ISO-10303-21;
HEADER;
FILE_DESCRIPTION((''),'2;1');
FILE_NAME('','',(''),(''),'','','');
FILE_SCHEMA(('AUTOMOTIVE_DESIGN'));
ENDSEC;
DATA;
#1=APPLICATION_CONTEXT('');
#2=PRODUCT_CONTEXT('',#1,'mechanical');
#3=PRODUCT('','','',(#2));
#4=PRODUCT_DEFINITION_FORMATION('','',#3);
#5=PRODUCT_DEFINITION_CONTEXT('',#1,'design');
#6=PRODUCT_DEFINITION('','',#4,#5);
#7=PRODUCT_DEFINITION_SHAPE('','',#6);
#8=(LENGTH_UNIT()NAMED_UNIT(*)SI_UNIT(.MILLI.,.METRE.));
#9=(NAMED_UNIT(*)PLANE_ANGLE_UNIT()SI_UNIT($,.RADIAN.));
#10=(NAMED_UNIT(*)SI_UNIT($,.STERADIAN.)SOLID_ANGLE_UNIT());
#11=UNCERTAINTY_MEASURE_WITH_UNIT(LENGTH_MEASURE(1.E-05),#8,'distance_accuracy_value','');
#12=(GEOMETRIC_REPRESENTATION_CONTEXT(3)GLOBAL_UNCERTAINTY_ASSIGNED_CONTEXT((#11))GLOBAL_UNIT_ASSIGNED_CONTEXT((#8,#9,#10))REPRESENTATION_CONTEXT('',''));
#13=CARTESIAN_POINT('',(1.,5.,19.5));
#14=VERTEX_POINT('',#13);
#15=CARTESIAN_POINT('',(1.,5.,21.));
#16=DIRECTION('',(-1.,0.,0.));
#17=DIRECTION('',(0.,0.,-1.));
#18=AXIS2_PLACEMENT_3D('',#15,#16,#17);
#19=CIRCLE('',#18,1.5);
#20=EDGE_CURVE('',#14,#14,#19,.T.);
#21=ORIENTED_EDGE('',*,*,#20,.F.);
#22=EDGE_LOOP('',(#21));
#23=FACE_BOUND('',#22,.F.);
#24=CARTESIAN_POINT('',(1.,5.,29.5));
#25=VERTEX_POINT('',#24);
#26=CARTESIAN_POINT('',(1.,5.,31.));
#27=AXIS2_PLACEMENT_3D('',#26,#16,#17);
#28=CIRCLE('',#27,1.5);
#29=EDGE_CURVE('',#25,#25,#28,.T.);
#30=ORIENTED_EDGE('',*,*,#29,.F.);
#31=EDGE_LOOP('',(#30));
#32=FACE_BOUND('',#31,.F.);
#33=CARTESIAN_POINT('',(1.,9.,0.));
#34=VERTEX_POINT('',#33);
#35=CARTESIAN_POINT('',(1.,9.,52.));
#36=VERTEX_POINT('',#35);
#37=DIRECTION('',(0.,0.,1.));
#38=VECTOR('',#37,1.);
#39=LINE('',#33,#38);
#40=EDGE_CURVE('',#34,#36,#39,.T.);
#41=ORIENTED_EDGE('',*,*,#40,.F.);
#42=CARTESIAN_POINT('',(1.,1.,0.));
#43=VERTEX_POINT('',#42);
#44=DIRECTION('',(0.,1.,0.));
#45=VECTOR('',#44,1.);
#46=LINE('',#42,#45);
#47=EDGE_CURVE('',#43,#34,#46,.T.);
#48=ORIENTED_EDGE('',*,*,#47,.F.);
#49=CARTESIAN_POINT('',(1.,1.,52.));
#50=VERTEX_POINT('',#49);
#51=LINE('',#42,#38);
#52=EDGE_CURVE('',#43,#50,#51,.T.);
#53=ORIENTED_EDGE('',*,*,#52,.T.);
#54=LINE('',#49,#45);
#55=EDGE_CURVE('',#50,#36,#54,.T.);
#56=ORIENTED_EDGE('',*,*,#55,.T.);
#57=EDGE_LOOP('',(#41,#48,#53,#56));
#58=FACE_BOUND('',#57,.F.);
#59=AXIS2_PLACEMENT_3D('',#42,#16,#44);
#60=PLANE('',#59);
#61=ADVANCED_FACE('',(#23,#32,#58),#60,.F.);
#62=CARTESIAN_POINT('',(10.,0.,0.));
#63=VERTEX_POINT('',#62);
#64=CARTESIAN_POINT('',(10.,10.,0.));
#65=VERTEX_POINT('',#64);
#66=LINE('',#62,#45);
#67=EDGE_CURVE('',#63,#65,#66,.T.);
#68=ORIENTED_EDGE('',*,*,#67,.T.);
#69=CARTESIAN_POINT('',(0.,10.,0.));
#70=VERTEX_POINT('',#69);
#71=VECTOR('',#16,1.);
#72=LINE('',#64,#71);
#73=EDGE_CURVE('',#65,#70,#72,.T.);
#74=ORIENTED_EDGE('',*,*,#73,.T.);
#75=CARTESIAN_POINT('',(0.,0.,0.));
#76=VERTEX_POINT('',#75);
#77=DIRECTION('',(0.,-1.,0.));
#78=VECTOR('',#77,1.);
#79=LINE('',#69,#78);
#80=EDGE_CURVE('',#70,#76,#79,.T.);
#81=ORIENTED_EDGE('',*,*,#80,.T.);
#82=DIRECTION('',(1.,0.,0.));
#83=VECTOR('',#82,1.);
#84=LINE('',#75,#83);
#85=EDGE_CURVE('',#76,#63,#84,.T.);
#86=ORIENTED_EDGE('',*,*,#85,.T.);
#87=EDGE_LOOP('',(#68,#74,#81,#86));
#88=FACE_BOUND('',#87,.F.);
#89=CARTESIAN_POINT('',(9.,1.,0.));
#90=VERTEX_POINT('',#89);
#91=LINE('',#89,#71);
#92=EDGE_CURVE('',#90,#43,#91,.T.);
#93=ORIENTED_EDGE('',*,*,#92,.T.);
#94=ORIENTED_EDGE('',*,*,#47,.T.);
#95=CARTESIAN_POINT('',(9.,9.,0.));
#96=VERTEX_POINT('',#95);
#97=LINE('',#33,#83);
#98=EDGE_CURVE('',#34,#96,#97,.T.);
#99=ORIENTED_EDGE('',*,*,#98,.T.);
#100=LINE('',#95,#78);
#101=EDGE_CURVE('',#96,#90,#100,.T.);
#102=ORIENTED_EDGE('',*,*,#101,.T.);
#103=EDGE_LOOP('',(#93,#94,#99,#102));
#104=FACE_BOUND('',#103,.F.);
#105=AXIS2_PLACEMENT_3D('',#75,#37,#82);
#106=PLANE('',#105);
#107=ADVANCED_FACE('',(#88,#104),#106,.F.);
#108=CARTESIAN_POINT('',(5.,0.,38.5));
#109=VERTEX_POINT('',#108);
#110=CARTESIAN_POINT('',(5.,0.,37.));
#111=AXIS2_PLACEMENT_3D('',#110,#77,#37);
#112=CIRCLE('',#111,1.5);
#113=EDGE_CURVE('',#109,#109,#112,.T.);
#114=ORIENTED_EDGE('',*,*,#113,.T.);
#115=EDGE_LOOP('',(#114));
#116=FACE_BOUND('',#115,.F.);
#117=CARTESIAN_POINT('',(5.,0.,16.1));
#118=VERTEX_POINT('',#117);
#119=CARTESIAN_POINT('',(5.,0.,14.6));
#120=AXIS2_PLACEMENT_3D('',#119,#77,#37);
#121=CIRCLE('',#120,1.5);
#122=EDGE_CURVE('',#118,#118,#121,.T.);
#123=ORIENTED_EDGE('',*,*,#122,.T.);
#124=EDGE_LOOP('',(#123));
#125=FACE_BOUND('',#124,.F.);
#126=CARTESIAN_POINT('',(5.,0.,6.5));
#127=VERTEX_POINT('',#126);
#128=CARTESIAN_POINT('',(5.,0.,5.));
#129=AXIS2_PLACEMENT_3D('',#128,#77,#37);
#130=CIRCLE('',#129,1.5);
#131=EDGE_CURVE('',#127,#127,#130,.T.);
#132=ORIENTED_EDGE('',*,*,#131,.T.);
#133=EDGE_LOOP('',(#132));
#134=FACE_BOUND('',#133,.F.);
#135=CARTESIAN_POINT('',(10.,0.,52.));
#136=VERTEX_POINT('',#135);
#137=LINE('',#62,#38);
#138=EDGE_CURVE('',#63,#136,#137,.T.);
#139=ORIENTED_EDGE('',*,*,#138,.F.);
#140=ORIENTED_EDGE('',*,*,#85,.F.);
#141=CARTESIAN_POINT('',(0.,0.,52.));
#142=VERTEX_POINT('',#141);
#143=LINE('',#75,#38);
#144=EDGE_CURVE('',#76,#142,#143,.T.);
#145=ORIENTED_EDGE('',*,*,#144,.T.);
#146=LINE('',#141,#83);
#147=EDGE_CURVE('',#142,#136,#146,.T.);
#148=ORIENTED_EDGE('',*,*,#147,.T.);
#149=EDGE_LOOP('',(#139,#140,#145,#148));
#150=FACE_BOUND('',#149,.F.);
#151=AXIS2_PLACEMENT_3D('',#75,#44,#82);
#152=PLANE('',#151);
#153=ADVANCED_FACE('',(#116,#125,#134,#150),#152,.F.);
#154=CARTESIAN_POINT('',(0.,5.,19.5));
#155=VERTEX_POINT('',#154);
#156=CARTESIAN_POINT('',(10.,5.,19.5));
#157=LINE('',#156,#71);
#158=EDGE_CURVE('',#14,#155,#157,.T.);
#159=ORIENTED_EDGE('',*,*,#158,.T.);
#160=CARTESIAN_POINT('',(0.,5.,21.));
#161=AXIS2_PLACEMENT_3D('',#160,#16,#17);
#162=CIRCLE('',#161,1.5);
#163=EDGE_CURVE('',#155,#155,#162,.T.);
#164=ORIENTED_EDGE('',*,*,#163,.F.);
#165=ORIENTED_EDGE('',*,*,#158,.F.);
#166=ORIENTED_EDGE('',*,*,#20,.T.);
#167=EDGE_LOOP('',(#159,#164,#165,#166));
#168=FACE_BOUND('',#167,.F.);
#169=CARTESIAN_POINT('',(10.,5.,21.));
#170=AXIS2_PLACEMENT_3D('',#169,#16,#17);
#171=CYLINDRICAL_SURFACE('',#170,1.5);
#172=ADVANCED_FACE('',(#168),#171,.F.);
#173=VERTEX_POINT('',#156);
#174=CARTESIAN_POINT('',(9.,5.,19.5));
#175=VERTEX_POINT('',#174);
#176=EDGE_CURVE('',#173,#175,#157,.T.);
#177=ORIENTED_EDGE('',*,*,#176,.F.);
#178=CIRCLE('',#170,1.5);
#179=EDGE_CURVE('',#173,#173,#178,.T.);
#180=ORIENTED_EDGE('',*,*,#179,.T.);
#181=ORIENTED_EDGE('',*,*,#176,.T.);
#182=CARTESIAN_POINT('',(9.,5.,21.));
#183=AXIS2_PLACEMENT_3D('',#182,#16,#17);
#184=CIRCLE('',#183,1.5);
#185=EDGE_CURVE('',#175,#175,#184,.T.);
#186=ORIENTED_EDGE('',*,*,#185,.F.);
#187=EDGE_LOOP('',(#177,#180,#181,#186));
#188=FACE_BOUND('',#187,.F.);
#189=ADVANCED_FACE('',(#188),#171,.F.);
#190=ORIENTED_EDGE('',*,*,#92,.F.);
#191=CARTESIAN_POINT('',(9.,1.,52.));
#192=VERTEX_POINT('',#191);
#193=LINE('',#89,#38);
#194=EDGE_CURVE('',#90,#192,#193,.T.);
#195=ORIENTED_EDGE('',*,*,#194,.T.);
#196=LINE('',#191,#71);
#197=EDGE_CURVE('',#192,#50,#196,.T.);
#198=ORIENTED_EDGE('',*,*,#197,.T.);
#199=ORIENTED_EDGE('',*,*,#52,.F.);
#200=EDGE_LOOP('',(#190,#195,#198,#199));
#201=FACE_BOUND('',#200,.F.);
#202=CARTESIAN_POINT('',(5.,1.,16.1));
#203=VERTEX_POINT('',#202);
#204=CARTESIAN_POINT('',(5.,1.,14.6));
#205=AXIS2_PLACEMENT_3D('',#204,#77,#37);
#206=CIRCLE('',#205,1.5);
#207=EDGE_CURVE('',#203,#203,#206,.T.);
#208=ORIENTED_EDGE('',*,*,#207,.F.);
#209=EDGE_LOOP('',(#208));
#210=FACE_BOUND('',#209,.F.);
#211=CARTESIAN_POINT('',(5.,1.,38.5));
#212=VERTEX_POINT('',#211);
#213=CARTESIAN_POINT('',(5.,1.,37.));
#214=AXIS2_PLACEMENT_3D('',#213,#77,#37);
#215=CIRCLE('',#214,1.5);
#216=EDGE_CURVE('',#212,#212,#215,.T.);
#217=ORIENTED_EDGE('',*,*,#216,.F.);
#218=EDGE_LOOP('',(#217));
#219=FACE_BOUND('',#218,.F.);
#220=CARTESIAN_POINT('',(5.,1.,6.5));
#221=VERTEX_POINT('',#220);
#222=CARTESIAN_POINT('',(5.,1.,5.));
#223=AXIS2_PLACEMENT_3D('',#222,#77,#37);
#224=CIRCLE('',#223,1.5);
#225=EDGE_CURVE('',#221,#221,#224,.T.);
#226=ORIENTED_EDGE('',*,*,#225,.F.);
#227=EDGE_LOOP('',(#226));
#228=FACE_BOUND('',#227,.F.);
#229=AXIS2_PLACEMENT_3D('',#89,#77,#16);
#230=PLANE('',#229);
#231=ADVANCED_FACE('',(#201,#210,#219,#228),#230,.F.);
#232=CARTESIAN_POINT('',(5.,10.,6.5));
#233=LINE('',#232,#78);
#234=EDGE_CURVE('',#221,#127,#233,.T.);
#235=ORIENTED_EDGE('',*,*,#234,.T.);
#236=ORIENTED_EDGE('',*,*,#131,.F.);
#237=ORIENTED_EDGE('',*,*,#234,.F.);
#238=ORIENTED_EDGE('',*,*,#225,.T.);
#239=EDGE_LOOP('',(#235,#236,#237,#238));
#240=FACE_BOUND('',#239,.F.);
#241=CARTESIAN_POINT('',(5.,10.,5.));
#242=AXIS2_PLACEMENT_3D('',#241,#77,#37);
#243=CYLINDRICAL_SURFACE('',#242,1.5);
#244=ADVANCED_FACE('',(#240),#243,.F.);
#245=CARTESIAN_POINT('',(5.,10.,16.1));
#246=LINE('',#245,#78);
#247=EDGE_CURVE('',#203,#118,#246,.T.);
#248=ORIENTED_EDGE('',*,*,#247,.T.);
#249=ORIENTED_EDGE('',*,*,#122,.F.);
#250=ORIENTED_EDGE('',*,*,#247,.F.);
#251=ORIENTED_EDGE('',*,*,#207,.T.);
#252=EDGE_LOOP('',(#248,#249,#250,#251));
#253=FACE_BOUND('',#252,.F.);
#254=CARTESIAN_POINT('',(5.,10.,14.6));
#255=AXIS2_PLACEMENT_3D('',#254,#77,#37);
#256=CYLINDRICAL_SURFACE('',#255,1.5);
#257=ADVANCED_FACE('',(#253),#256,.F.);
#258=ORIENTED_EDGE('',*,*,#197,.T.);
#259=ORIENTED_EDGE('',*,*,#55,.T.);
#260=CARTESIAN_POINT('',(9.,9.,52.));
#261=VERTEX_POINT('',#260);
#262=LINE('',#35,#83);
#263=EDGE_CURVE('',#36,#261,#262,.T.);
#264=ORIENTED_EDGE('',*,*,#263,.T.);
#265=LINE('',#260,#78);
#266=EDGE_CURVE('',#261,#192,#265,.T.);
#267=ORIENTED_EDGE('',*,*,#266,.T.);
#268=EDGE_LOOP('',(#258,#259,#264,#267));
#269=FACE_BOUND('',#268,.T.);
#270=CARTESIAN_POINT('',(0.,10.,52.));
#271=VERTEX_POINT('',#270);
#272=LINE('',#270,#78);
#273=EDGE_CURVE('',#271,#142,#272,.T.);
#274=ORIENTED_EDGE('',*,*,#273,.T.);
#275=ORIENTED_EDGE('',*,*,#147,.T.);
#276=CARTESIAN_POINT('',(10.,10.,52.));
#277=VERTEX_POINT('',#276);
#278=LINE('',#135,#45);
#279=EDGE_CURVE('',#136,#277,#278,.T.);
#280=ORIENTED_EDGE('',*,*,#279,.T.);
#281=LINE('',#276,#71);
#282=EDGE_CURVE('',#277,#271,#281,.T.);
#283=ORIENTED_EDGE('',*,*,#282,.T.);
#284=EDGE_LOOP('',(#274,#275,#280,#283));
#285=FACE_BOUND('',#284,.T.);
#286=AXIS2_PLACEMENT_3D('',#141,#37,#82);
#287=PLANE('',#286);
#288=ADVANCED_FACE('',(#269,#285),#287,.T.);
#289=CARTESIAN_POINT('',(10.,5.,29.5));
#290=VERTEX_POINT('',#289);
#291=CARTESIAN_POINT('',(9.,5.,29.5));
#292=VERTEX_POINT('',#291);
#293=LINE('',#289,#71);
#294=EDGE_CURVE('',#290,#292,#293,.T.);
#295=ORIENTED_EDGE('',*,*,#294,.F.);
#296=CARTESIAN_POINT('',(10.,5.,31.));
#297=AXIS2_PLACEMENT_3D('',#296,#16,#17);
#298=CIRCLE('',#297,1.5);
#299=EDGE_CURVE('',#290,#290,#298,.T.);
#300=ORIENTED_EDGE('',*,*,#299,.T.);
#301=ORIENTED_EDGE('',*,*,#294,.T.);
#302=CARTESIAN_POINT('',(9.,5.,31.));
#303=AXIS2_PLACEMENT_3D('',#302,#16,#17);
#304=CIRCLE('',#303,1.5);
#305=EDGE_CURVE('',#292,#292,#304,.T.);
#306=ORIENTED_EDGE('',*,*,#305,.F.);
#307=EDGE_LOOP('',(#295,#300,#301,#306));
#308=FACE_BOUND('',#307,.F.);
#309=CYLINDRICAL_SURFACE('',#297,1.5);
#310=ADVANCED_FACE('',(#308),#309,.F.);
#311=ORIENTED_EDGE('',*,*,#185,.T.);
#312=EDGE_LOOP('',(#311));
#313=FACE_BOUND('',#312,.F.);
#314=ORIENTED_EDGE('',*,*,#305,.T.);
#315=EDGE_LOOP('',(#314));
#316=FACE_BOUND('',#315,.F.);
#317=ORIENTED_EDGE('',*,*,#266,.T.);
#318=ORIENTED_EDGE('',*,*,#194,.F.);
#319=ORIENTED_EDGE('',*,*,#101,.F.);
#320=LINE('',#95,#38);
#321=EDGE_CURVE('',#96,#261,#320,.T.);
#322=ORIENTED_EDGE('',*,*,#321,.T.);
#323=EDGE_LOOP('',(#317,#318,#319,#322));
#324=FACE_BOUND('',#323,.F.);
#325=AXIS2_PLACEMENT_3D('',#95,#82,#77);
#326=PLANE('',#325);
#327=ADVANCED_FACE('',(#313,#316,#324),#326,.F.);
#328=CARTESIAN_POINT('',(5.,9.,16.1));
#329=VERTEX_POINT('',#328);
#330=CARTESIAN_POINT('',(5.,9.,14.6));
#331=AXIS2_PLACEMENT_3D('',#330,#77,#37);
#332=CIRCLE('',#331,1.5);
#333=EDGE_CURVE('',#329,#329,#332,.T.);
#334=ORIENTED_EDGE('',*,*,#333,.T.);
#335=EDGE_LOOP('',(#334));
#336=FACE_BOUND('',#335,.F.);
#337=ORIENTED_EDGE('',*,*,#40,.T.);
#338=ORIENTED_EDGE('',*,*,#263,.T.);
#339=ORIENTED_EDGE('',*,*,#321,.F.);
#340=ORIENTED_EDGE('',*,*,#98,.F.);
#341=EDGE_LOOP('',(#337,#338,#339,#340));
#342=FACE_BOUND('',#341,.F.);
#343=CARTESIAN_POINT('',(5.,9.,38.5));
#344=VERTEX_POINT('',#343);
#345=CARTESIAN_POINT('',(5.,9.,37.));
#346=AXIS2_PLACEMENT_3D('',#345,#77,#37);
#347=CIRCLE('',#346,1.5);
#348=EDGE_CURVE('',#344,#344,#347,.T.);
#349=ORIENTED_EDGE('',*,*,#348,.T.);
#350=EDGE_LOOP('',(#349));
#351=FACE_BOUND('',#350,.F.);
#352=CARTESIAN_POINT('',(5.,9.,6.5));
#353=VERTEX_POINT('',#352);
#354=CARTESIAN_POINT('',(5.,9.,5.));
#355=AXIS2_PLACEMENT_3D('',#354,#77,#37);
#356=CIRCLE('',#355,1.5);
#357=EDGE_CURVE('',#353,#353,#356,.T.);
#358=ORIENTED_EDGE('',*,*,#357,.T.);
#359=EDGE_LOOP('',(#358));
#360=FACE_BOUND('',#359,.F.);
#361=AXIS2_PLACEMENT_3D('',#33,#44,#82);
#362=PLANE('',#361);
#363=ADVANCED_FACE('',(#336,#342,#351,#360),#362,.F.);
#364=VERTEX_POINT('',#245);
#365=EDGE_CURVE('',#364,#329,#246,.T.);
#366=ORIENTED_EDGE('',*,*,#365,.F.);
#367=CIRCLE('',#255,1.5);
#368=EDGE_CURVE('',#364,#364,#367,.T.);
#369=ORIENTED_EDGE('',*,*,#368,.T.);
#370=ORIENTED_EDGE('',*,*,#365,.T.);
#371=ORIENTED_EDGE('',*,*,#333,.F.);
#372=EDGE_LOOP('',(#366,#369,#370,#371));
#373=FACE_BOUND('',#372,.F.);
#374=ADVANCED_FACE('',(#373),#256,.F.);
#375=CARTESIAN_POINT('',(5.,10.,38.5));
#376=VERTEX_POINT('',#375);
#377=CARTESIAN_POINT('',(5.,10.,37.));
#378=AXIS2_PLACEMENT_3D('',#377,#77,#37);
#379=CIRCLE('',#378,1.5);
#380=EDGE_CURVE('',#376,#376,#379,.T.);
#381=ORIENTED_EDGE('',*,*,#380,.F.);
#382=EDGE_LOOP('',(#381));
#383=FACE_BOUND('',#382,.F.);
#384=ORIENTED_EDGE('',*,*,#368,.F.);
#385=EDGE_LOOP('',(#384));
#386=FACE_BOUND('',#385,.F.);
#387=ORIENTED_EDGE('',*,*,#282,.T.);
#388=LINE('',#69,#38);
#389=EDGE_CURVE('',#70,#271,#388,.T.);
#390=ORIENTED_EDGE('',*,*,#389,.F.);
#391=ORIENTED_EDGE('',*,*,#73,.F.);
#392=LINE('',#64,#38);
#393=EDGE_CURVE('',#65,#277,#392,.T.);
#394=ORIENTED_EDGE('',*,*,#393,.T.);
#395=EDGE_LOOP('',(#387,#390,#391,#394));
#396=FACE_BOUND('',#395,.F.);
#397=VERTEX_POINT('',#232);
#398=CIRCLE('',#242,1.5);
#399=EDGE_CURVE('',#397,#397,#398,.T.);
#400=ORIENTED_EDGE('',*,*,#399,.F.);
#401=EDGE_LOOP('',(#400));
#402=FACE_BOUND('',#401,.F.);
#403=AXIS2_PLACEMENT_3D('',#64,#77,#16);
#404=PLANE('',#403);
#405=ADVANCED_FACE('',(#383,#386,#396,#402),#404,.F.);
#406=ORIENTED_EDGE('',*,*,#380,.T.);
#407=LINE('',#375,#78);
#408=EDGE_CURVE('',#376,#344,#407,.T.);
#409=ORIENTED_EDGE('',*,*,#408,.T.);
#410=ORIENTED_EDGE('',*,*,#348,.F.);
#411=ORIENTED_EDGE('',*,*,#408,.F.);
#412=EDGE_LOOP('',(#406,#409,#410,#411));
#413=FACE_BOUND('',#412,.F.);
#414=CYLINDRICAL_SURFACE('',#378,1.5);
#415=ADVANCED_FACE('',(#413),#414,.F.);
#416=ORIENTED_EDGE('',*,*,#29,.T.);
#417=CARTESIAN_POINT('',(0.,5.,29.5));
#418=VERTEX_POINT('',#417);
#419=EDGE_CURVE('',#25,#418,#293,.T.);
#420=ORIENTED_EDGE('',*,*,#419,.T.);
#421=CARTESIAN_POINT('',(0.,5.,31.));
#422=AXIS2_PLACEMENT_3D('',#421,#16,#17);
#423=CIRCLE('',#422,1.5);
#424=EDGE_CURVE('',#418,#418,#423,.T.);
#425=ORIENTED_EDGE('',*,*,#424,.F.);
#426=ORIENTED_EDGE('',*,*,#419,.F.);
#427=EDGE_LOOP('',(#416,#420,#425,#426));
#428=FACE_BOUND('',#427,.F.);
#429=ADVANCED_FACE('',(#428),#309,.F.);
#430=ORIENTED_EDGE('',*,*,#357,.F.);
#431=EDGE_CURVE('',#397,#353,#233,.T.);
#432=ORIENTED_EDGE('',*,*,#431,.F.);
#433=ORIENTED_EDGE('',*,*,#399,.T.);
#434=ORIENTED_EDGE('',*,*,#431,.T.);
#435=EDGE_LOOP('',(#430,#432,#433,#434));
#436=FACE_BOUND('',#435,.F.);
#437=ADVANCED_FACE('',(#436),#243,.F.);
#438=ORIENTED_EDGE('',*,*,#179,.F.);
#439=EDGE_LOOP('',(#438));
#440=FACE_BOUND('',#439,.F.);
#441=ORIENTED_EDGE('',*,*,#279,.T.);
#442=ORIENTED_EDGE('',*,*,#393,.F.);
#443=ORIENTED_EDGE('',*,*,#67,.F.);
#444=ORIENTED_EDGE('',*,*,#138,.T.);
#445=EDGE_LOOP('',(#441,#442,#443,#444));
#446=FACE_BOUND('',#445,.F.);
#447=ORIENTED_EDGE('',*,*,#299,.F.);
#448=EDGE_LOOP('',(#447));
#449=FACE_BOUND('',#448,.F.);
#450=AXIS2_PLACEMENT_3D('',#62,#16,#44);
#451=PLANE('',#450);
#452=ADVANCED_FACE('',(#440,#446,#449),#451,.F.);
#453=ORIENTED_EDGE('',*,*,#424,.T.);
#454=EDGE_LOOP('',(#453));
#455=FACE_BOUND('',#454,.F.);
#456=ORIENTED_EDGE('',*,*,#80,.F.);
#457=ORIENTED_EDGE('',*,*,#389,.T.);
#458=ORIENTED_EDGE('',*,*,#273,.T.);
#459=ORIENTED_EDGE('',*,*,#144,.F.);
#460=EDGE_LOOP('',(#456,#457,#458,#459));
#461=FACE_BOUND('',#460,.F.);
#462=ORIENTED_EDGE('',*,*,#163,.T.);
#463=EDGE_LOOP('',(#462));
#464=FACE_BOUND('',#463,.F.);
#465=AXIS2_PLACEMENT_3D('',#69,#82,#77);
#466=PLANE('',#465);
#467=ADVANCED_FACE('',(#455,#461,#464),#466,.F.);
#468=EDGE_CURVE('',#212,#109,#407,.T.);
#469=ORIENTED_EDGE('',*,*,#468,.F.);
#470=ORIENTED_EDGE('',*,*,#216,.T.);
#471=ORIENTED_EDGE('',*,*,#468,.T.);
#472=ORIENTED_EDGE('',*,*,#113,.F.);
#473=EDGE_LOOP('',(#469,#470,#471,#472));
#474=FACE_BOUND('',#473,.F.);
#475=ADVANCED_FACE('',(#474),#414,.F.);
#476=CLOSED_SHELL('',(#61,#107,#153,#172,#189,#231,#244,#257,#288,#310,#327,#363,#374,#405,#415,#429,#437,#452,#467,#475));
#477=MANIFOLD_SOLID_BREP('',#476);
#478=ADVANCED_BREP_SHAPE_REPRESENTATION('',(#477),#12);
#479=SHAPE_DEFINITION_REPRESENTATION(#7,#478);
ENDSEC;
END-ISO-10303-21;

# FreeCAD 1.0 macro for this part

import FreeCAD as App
import Part
import Sketcher
from FreeCAD import Vector


def add_polygon(sketch, points):
    """Adds a closed chain of lines whose ends are joined by coincident constraints."""
    first, n = sketch.GeometryCount, len(points)
    for a, b in zip(points, points[1:] + points[:1]):
        sketch.addGeometry(Part.LineSegment(App.Vector(*a, 0), App.Vector(*b, 0)), False)
    for i in range(n):
        sketch.addConstraint(Sketcher.Constraint("Coincident", first + i, 2, first + (i + 1) % n, 1))

doc = App.newDocument("Part")
params = doc.addObject("Spreadsheet::Sheet", "Params")
for row, (alias, value) in enumerate([
    ("sketch1_width", "10 mm"),
    ("pad1_length", "52 mm"),
    ("sketch2_diameter", "3 mm"),
    ("hole_diameter", "3 mm"),
    ("sketch3_diameter", "3 mm"),
    ("hole2_diameter", "3 mm"),
], start=1):
    params.set(f"A{row}", alias)
    params.set(f"B{row}", "=" + value)
    params.setAlias(f"B{row}", alias)

body = doc.addObject("PartDesign::Body", "Body")

# Sketch on XY plane
sketch1 = body.newObject("Sketcher::SketchObject", "Sketch")
sketch1.AttachmentSupport = (doc.getObject("XY_Plane"), [""])
sketch1.MapMode = "FlatFace"
add_polygon(sketch1, [(0, 10), (0, 0), (10, 0), (10, 10)])  # lines 0-3
add_polygon(sketch1, [(1, 1), (1, 9), (9, 9), (9, 1)])  # lines 4-7
sketch1.addConstraint(Sketcher.Constraint("Vertical", 0))
sketch1.addConstraint(Sketcher.Constraint("Horizontal", 1))
sketch1.addConstraint(Sketcher.Constraint("Vertical", 2))
sketch1.addConstraint(Sketcher.Constraint("Horizontal", 3))
sketch1.addConstraint(Sketcher.Constraint("Vertical", 4))
sketch1.addConstraint(Sketcher.Constraint("Horizontal", 5))
sketch1.addConstraint(Sketcher.Constraint("Vertical", 6))
sketch1.addConstraint(Sketcher.Constraint("Horizontal", 7))
sketch1.addConstraint(Sketcher.Constraint("Coincident", 0, 2, -1, 1))
sketch1.addConstraint(Sketcher.Constraint("Equal", 3, 0))
sketch1.addConstraint(Sketcher.Constraint("Equal", 7, 4))
sketch1.addConstraint(Sketcher.Constraint("DistanceX", 1, 1, 1, 2, 10.0))
sketch1.addConstraint(Sketcher.Constraint("DistanceX", -1, 1, 4, 2, 1.0))
sketch1.addConstraint(Sketcher.Constraint("DistanceY", -1, 1, 6, 2, 1.0))
sketch1.addConstraint(Sketcher.Constraint("DistanceY", 4, 2, 3, 2, 1.0))
sketch1.setExpression("Constraints[19]", "Params.sketch1_width")
pad1 = body.newObject("PartDesign::Pad", "Pad")
pad1.Profile = sketch1
pad1.setExpression("Length", "Params.pad1_length")

# Sketch on XZ plane
sketch2 = body.newObject("Sketcher::SketchObject", "Sketch001")
sketch2.AttachmentSupport = (doc.getObject("XZ_Plane"), [""])
sketch2.MapMode = "FlatFace"
sketch2.AttachmentOffset = App.Placement(Vector(0, 0, -10), App.Rotation())
sketch2.addGeometry(Part.Circle(Vector(5, 37, 0), Vector(0, 0, 1), 1.5), False)
sketch2.addGeometry(Part.Circle(Vector(5, 14.6, 0), Vector(0, 0, 1), 1.5), False)
sketch2.addGeometry(Part.Circle(Vector(5, 5, 0), Vector(0, 0, 1), 1.5), False)
sketch2.addConstraint(Sketcher.Constraint("Equal", 0, 1))
sketch2.addConstraint(Sketcher.Constraint("Equal", 1, 2))
sketch2.addConstraint(Sketcher.Constraint("Vertical", 0, 3, 1, 3))
sketch2.addConstraint(Sketcher.Constraint("Vertical", 1, 3, 2, 3))
sketch2.addConstraint(Sketcher.Constraint("Diameter", 0, 3.0))
sketch2.addConstraint(Sketcher.Constraint("DistanceX", -1, 1, 0, 3, 5.0))
sketch2.addConstraint(Sketcher.Constraint("DistanceY", -1, 1, 0, 3, 37.0))
sketch2.addConstraint(Sketcher.Constraint("DistanceY", -1, 1, 2, 3, 5.0))
sketch2.addConstraint(Sketcher.Constraint("DistanceY", -1, 1, 1, 3, 14.6))
sketch2.setExpression("Constraints[4]", "Params.sketch2_diameter")
doc.recompute()
hole = body.newObject("PartDesign::Hole", "Hole")
hole.Profile = sketch2
hole.ThreadType = "None"
hole.setExpression("Diameter", "Params.hole_diameter")
hole.DepthType = "ThroughAll"
hole.Reversed = True

# Sketch on YZ plane
sketch3 = body.newObject("Sketcher::SketchObject", "Sketch002")
sketch3.AttachmentSupport = (doc.getObject("YZ_Plane"), [""])
sketch3.MapMode = "FlatFace"
sketch3.AttachmentOffset = App.Placement(Vector(0, 0, 10), App.Rotation())
sketch3.addGeometry(Part.Circle(Vector(5, 31, 0), Vector(0, 0, 1), 1.5), False)
sketch3.addGeometry(Part.Circle(Vector(5, 21, 0), Vector(0, 0, 1), 1.5), False)
sketch3.addConstraint(Sketcher.Constraint("Equal", 0, 1))
sketch3.addConstraint(Sketcher.Constraint("Vertical", 0, 3, 1, 3))
sketch3.addConstraint(Sketcher.Constraint("Diameter", 0, 3.0))
sketch3.addConstraint(Sketcher.Constraint("DistanceX", -1, 1, 0, 3, 5.0))
sketch3.addConstraint(Sketcher.Constraint("DistanceY", -1, 1, 0, 3, 31.0))
sketch3.addConstraint(Sketcher.Constraint("DistanceY", -1, 1, 1, 3, 21.0))
sketch3.setExpression("Constraints[2]", "Params.sketch3_diameter")
doc.recompute()
hole2 = body.newObject("PartDesign::Hole", "Hole001")
hole2.Profile = sketch3
hole2.ThreadType = "None"
hole2.setExpression("Diameter", "Params.hole2_diameter")
hole2.DepthType = "ThroughAll"

doc.recompute()
